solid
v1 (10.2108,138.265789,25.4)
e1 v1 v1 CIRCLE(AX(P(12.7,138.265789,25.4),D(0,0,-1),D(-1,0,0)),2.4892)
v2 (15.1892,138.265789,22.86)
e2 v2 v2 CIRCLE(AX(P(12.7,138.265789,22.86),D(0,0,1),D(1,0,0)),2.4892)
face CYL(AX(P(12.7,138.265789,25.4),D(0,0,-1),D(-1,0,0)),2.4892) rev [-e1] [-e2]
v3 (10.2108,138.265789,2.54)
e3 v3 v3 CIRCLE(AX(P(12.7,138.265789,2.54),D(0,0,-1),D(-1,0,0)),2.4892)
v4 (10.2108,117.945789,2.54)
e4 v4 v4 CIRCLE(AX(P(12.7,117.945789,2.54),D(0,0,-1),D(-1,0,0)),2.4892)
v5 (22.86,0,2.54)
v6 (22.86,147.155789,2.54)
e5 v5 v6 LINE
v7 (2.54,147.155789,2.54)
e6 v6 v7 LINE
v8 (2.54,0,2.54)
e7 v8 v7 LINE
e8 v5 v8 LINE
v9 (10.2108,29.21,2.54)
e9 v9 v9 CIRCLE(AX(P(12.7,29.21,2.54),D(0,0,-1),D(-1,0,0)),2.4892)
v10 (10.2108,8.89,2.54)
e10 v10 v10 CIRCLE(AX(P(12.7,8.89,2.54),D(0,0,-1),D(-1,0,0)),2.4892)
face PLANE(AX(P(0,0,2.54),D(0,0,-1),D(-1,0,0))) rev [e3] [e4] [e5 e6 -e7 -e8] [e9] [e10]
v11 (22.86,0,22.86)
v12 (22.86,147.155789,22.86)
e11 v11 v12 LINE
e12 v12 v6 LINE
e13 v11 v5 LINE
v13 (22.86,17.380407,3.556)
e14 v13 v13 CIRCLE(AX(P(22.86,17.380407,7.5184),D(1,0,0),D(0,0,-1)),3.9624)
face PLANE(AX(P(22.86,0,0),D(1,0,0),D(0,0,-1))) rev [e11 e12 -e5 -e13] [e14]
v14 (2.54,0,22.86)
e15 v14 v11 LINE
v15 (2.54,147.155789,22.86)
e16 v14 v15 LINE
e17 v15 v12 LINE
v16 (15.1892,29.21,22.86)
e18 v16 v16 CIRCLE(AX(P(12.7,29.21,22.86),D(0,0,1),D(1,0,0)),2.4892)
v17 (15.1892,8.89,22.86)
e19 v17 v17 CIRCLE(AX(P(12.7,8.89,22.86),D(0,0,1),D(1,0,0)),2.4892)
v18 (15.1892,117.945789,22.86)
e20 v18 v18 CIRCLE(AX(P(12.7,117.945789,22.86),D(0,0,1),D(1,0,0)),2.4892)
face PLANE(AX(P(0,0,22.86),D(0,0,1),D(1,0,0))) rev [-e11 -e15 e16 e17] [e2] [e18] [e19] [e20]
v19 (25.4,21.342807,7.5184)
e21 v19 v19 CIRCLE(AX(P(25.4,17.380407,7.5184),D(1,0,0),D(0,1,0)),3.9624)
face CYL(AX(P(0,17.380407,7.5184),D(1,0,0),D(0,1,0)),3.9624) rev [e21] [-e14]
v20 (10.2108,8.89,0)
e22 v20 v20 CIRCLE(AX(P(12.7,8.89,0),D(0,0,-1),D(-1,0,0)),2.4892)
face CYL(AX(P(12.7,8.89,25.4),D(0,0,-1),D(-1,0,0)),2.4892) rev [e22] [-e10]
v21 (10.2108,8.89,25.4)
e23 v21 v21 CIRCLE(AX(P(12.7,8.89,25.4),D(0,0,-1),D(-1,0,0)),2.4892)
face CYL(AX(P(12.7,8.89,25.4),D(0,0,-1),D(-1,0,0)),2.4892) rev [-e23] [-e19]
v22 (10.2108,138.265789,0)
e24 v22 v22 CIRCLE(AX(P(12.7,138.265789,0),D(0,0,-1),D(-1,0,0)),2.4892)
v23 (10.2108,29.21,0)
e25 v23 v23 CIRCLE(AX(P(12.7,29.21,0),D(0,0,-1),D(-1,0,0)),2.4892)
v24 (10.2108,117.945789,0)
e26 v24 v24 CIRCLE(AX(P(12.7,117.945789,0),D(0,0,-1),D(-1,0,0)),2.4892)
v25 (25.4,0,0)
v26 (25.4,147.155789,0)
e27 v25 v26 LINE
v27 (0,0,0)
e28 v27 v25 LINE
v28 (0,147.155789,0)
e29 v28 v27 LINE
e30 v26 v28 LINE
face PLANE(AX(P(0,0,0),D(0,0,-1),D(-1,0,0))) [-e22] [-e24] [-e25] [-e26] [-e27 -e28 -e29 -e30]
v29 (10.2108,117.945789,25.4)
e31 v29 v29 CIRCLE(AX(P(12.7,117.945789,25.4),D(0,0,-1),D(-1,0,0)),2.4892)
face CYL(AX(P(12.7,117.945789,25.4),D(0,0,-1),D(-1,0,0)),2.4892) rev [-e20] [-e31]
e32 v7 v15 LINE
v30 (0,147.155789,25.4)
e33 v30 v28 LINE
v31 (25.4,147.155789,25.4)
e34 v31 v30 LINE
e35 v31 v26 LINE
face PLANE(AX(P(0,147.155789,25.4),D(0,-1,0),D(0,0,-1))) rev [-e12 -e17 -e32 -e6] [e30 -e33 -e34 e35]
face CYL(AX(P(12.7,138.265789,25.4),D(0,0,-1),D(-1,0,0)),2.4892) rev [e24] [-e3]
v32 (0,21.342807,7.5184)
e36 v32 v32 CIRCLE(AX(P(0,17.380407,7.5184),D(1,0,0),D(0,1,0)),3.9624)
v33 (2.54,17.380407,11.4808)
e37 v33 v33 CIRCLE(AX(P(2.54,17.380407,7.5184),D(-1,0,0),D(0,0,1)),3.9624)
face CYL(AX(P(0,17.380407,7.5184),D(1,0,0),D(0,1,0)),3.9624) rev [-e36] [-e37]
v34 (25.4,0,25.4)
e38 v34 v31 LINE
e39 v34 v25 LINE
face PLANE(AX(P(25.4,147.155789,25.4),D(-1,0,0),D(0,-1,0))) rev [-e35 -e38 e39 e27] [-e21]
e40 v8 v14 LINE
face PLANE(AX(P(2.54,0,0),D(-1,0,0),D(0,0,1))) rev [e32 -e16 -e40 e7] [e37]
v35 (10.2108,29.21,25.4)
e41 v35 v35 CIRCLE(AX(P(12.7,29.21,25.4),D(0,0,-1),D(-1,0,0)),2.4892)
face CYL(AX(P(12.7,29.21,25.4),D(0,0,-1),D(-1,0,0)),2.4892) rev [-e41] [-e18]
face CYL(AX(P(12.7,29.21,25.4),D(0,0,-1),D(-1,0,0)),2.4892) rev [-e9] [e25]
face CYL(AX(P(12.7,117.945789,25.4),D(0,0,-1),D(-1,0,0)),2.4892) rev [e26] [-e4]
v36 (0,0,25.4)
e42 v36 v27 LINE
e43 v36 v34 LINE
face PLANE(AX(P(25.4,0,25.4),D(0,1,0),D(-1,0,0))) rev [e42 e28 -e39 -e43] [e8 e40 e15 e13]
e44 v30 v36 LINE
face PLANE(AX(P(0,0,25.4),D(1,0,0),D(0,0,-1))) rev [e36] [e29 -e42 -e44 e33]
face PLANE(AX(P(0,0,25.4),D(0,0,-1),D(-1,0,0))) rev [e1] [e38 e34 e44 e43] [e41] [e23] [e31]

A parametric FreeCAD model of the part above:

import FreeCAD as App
import Part
import Sketcher

V = App.Vector
Q = App.Units.Quantity


def add_polygon(sketch, points):
    """Adds a closed chain of lines whose ends are joined by coincident constraints."""
    first, n = sketch.GeometryCount, len(points)
    for a, b in zip(points, points[1:] + points[:1]):
        sketch.addGeometry(Part.LineSegment(App.Vector(*a, 0), App.Vector(*b, 0)), False)
    for i in range(n):
        sketch.addConstraint(Sketcher.Constraint("Coincident", first + i, 2, first + (i + 1) % n, 1))

doc = App.newDocument("Part")
body = doc.addObject("PartDesign::Body", "Body")

# Sketch on XY plane
sketch1 = doc.addObject("Sketcher::SketchObject", "Sketch")
body.addObject(sketch1)
sketch1.AttachmentSupport = (doc.XY_Plane, [""])
sketch1.MapMode = "FlatFace"
add_polygon(sketch1, [(0, 147), (0, 0), (25, 0), (25, 147)])  # lines 0-3
sketch1.addConstraint([
    Sketcher.Constraint("Vertical", 0),
    Sketcher.Constraint("Horizontal", 1),
    Sketcher.Constraint("Vertical", 2),
    Sketcher.Constraint("Horizontal", 3),
    Sketcher.Constraint("Coincident", 0, 2, -1, 1),
    Sketcher.Constraint("DistanceX", 1, 1, 1, 2, Q("1 in")),
    Sketcher.Constraint("DistanceY", 0, 2, 0, 1, Q("147.155789 mm")),
])
pad1 = doc.addObject("PartDesign::Pad", "Pad")
body.addObject(pad1)
pad1.Profile = sketch1
pad1.Length = Q("1 in")

# Sketch on XZ plane
sketch2 = doc.addObject("Sketcher::SketchObject", "Sketch001")
body.addObject(sketch2)
sketch2.AttachmentSupport = (doc.XZ_Plane, [""])
sketch2.MapMode = "FlatFace"
sketch2.AttachmentOffset = App.Placement(V(0, 0, -147.155789), App.Rotation())
add_polygon(sketch2, [(3, 3), (3, 23), (23, 23), (23, 3)])  # lines 0-3
sketch2.addConstraint([
    Sketcher.Constraint("Vertical", 0),
    Sketcher.Constraint("Horizontal", 1),
    Sketcher.Constraint("Vertical", 2),
    Sketcher.Constraint("Horizontal", 3),
    Sketcher.Constraint("Equal", 3, 0),
    Sketcher.Constraint("DistanceX", 1, 1, 1, 2, Q("0.8 in")),
    Sketcher.Constraint("DistanceX", -1, 1, 0, 2, Q("0.1 in")),
    Sketcher.Constraint("DistanceY", -1, 1, 0, 2, Q("0.9 in")),
])
pocket1 = doc.addObject("PartDesign::Pocket", "Pocket")
body.addObject(pocket1)
pocket1.Profile = sketch2
pocket1.Type = "ThroughAll"
pocket1.Reversed = True

# Sketch on XY plane
sketch3 = doc.addObject("Sketcher::SketchObject", "Sketch002")
body.addObject(sketch3)
sketch3.AttachmentSupport = (doc.XY_Plane, [""])
sketch3.MapMode = "FlatFace"
sketch3.addGeometry([
    Part.Circle(V(12.7, 138.3, 0), V(0, 0, 1), 2.5),
    Part.Circle(V(12.7, 117.9, 0), V(0, 0, 1), 2.5),
    Part.Circle(V(12.7, 29.2, 0), V(0, 0, 1), 2.5),
    Part.Circle(V(12.7, 8.9, 0), V(0, 0, 1), 2.5),
], False)
sketch3.addConstraint([
    Sketcher.Constraint("Equal", 0, 1),
    Sketcher.Constraint("Equal", 1, 2),
    Sketcher.Constraint("Equal", 2, 3),
    Sketcher.Constraint("Vertical", 0, 3, 1, 3),
    Sketcher.Constraint("Vertical", 1, 3, 2, 3),
    Sketcher.Constraint("Vertical", 2, 3, 3, 3),
    Sketcher.Constraint("Diameter", 0, Q("0.196 in")),
    Sketcher.Constraint("DistanceX", -1, 1, 0, 3, Q("0.5 in")),
    Sketcher.Constraint("DistanceY", 1, 3, 0, 3, Q("0.8 in")),
    Sketcher.Constraint("DistanceY", 3, 3, 2, 3, Q("0.8 in")),
    Sketcher.Constraint("DistanceY", -1, 1, 2, 3, Q("1.15 in")),
    Sketcher.Constraint("DistanceY", -1, 1, 0, 3, Q("138.265789 mm")),
])
pocket2 = doc.addObject("PartDesign::Pocket", "Pocket001")
body.addObject(pocket2)
pocket2.Profile = sketch3
pocket2.Type = "ThroughAll"
pocket2.Reversed = True

# Sketch on YZ plane
sketch4 = doc.addObject("Sketcher::SketchObject", "Sketch003")
body.addObject(sketch4)
sketch4.AttachmentSupport = (doc.YZ_Plane, [""])
sketch4.MapMode = "FlatFace"
sketch4.AttachmentOffset = App.Placement(V(0, 0, 1 * 25.4), App.Rotation())
sketch4.addGeometry(Part.Circle(V(17.4, 7.5, 0), V(0, 0, 1), 4), False)
sketch4.addConstraint([
    Sketcher.Constraint("Diameter", 0, Q("0.312 in")),
    Sketcher.Constraint("DistanceY", -1, 1, 0, 3, Q("0.296 in")),
    Sketcher.Constraint("DistanceX", -1, 1, 0, 3, Q("17.380407 mm")),
])
pocket3 = doc.addObject("PartDesign::Pocket", "Pocket002")
body.addObject(pocket3)
pocket3.Profile = sketch4
pocket3.Type = "ThroughAll"

doc.recompute()
